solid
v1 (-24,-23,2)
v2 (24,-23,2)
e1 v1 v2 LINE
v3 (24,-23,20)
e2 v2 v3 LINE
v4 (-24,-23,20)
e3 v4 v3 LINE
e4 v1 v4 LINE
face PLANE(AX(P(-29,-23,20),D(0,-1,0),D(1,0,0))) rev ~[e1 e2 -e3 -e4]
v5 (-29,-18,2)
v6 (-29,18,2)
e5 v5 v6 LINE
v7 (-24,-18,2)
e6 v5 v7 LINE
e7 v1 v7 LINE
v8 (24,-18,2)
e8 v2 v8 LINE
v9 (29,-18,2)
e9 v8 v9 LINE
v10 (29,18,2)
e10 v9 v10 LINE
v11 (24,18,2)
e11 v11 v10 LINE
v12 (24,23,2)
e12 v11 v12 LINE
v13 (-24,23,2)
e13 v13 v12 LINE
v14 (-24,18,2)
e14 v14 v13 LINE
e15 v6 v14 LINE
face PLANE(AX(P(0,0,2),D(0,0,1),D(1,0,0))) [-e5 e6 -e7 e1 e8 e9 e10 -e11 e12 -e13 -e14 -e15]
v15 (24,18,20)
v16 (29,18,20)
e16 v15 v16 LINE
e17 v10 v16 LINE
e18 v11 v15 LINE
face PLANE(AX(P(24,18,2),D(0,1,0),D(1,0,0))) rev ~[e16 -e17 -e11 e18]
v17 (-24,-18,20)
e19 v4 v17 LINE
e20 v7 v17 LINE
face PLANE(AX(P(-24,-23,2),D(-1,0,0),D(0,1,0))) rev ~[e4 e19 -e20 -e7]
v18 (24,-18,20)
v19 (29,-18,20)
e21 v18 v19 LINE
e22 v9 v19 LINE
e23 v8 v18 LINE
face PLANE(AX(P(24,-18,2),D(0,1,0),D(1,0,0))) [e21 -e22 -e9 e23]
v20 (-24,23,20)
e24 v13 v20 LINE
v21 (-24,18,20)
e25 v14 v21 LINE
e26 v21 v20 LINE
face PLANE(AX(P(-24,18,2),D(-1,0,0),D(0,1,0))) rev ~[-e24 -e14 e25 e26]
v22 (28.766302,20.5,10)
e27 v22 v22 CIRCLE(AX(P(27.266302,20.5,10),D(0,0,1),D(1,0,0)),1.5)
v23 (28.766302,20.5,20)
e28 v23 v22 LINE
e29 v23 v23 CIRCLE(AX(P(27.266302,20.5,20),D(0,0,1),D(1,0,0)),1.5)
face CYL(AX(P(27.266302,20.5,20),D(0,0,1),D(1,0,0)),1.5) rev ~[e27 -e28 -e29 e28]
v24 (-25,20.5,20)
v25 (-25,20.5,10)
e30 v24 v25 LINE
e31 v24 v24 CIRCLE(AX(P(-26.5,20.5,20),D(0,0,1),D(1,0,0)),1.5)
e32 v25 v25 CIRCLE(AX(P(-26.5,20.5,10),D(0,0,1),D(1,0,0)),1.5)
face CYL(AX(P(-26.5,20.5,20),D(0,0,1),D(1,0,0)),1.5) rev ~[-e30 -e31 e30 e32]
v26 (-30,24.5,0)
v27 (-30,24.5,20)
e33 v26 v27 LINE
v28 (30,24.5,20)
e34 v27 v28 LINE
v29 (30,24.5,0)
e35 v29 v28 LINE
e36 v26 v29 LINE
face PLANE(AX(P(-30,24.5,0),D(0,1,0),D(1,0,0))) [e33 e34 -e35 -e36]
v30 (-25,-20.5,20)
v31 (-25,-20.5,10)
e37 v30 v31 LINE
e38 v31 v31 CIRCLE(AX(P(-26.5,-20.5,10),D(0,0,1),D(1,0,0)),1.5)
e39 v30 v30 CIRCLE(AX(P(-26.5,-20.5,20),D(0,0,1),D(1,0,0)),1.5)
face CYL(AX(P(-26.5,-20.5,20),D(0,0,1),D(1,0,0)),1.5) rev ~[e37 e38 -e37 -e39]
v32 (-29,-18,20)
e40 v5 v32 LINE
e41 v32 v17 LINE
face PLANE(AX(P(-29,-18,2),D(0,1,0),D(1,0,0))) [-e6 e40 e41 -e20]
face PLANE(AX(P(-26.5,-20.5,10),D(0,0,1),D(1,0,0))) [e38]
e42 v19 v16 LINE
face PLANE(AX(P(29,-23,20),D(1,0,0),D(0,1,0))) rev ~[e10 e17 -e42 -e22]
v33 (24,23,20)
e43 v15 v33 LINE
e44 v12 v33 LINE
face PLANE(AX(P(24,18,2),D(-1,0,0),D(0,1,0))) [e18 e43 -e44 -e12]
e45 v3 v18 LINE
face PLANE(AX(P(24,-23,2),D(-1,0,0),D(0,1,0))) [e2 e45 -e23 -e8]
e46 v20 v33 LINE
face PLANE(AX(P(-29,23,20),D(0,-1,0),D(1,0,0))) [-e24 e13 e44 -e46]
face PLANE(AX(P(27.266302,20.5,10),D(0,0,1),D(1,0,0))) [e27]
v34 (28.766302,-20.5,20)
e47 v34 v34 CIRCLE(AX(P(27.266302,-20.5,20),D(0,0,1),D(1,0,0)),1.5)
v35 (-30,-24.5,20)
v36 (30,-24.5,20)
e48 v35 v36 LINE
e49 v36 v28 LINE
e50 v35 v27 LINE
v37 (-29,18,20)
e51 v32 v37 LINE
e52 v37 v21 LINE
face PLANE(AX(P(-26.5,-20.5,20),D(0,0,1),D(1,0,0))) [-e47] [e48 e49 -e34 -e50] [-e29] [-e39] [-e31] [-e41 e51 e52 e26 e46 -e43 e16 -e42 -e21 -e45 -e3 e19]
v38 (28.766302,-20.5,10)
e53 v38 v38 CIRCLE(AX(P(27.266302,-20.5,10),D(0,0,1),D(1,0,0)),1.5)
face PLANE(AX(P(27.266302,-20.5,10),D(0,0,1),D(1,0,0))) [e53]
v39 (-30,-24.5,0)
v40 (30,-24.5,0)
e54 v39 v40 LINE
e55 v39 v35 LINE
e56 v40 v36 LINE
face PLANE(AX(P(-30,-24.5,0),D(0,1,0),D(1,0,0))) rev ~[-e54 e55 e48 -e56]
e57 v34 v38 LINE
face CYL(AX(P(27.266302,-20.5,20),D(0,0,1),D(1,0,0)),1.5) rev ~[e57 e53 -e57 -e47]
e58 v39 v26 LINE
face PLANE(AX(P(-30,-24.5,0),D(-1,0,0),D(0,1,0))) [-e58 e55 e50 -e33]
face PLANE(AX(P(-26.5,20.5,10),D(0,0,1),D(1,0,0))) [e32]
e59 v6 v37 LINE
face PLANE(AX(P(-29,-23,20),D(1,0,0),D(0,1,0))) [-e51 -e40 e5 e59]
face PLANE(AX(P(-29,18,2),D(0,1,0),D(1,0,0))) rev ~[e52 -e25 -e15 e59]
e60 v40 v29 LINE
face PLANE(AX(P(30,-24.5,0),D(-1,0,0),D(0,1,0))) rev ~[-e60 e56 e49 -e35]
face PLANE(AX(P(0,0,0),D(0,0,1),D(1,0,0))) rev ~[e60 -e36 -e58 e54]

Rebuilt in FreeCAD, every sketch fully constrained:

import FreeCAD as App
import Part
import Sketcher
Q = App.Units.Quantity


def add_polygon(sketch, points):
    """Adds a closed chain of lines whose ends are joined by coincident constraints."""
    first, n = sketch.GeometryCount, len(points)
    for a, b in zip(points, points[1:] + points[:1]):
        sketch.addGeometry(Part.LineSegment(App.Vector(*a, 0), App.Vector(*b, 0)), False)
    for i in range(n):
        sketch.addConstraint(Sketcher.Constraint("Coincident", first + i, 2, first + (i + 1) % n, 1))

doc = App.newDocument("Part")
body = doc.addObject("PartDesign::Body", "Body")

sketch1 = doc.addObject("Sketcher::SketchObject", "Sketch")
body.addObject(sketch1)
sketch1.AttachmentSupport = (doc.XY_Plane, [""])
sketch1.MapMode = "FlatFace"
add_polygon(sketch1, [(-30, 24.5), (-30, -24.5), (30, -24.5), (30, 24.5)])
sketch1.addConstraint(Sketcher.Constraint("Vertical", 0))
sketch1.addConstraint(Sketcher.Constraint("Horizontal", 1))
sketch1.addConstraint(Sketcher.Constraint("Vertical", 2))
sketch1.addConstraint(Sketcher.Constraint("Horizontal", 3))
sketch1.addConstraint(Sketcher.Constraint("Symmetric", 0, 2, 2, 2, -1, 1))
sketch1.addConstraint(Sketcher.Constraint("DistanceX", 1, 1, 1, 2, Q("60 mm")))
sketch1.addConstraint(Sketcher.Constraint("DistanceY", 0, 2, 0, 1, Q("49 mm")))
pad1 = doc.addObject("PartDesign::Pad", "Pad")
body.addObject(pad1)
pad1.Profile = sketch1
pad1.Length = 20

sketch2 = doc.addObject("Sketcher::SketchObject", "Sketch001")
body.addObject(sketch2)
sketch2.AttachmentSupport = (doc.XY_Plane, [""])
sketch2.MapMode = "FlatFace"
sketch2.AttachmentOffset = App.Placement(App.Vector(0, 0, 20), App.Rotation())
add_polygon(sketch2, [(-29, 23), (-29, -23), (29, -23), (29, 23)])
sketch2.addConstraint(Sketcher.Constraint("Vertical", 0))
sketch2.addConstraint(Sketcher.Constraint("Horizontal", 1))
sketch2.addConstraint(Sketcher.Constraint("Vertical", 2))
sketch2.addConstraint(Sketcher.Constraint("Horizontal", 3))
sketch2.addConstraint(Sketcher.Constraint("Symmetric", 0, 2, 2, 2, -1, 1))
sketch2.addConstraint(Sketcher.Constraint("DistanceX", 1, 1, 1, 2, Q("58 mm")))
sketch2.addConstraint(Sketcher.Constraint("DistanceY", 0, 2, 0, 1, Q("46 mm")))
pocket1 = doc.addObject("PartDesign::Pocket", "Pocket")
body.addObject(pocket1)
pocket1.Profile = sketch2
pocket1.Length = 18

sketch3 = doc.addObject("Sketcher::SketchObject", "Sketch002")
body.addObject(sketch3)
sketch3.AttachmentSupport = (doc.XY_Plane, [""])
sketch3.MapMode = "FlatFace"
sketch3.AttachmentOffset = App.Placement(App.Vector(0, 0, 2), App.Rotation())
add_polygon(sketch3, [(-29, -18), (-29, -23), (-24, -23), (-24, -18)])
add_polygon(sketch3, [(24, -18), (24, -23), (29, -23), (29, -18)])
add_polygon(sketch3, [(-29, 23), (-29, 18), (-24, 18), (-24, 23)])
add_polygon(sketch3, [(24, 23), (24, 18), (29, 18), (29, 23)])
sketch3.addConstraint(Sketcher.Constraint("Vertical", 0))
sketch3.addConstraint(Sketcher.Constraint("Horizontal", 1))
sketch3.addConstraint(Sketcher.Constraint("Vertical", 2))
sketch3.addConstraint(Sketcher.Constraint("Horizontal", 3))
sketch3.addConstraint(Sketcher.Constraint("Vertical", 4))
sketch3.addConstraint(Sketcher.Constraint("Horizontal", 5))
sketch3.addConstraint(Sketcher.Constraint("Vertical", 6))
sketch3.addConstraint(Sketcher.Constraint("Horizontal", 7))
sketch3.addConstraint(Sketcher.Constraint("Vertical", 8))
sketch3.addConstraint(Sketcher.Constraint("Horizontal", 9))
sketch3.addConstraint(Sketcher.Constraint("Vertical", 10))
sketch3.addConstraint(Sketcher.Constraint("Horizontal", 11))
sketch3.addConstraint(Sketcher.Constraint("Vertical", 12))
sketch3.addConstraint(Sketcher.Constraint("Horizontal", 13))
sketch3.addConstraint(Sketcher.Constraint("Vertical", 14))
sketch3.addConstraint(Sketcher.Constraint("Horizontal", 15))
sketch3.addConstraint(Sketcher.Constraint("Symmetric", 6, 2, 8, 2, -1, 1))
sketch3.addConstraint(Sketcher.Constraint("Symmetric", 4, 2, 10, 2, -1, 1))
sketch3.addConstraint(Sketcher.Constraint("Symmetric", 2, 2, 12, 2, -1, 1))
sketch3.addConstraint(Sketcher.Constraint("Symmetric", 0, 2, 14, 2, -1, 1))
sketch3.addConstraint(Sketcher.Constraint("Symmetric", 1, 2, 4, 2, -2))
sketch3.addConstraint(Sketcher.Constraint("Symmetric", 3, 2, 6, 2, -2))
sketch3.addConstraint(Sketcher.Constraint("Equal", 15, 0))
sketch3.addConstraint(Sketcher.Constraint("DistanceX", 1, 1, 1, 2, Q("5 mm")))
sketch3.addConstraint(Sketcher.Constraint("DistanceX", 0, 2, -1, 1, Q("29 mm")))
sketch3.addConstraint(Sketcher.Constraint("DistanceY", 0, 2, -1, 1, Q("23 mm")))
pad2 = doc.addObject("PartDesign::Pad", "Pad001")
body.addObject(pad2)
pad2.Profile = sketch3
pad2.Length = 18

sketch4 = doc.addObject("Sketcher::SketchObject", "Sketch003")
body.addObject(sketch4)
sketch4.AttachmentSupport = (doc.XY_Plane, [""])
sketch4.MapMode = "FlatFace"
sketch4.AttachmentOffset = App.Placement(App.Vector(0, 0, 20), App.Rotation())
sketch4.addGeometry(Part.Circle(App.Vector(-26.5, -20.5, 0), App.Vector(0, 0, 1), 1.5), False)
sketch4.addGeometry(Part.Circle(App.Vector(-26.5, 20.5, 0), App.Vector(0, 0, 1), 1.5), False)
sketch4.addGeometry(Part.Circle(App.Vector(27.266302, 20.5, 0), App.Vector(0, 0, 1), 1.5), False)
sketch4.addGeometry(Part.Circle(App.Vector(27.266302, -20.5, 0), App.Vector(0, 0, 1), 1.5), False)
sketch4.addConstraint(Sketcher.Constraint("Equal", 0, 1))
sketch4.addConstraint(Sketcher.Constraint("Equal", 1, 2))
sketch4.addConstraint(Sketcher.Constraint("Equal", 2, 3))
sketch4.addConstraint(Sketcher.Constraint("Symmetric", 0, 3, 1, 3, -1))
sketch4.addConstraint(Sketcher.Constraint("Symmetric", 2, 3, 3, 3, -1))
sketch4.addConstraint(Sketcher.Constraint("Horizontal", 1, 3, 2, 3))
sketch4.addConstraint(Sketcher.Constraint("Diameter", 0, Q("3 mm")))
sketch4.addConstraint(Sketcher.Constraint("DistanceY", 0, 3, 1, 3, Q("41 mm")))
sketch4.addConstraint(Sketcher.Constraint("DistanceX", 0, 3, -1, 1, Q("26.5 mm")))
sketch4.addConstraint(Sketcher.Constraint("DistanceX", -1, 1, 2, 3, Q("27.266302 mm")))
pocket2 = doc.addObject("PartDesign::Pocket", "Pocket001")
body.addObject(pocket2)
pocket2.Profile = sketch4
pocket2.Length = 10

doc.recompute()
